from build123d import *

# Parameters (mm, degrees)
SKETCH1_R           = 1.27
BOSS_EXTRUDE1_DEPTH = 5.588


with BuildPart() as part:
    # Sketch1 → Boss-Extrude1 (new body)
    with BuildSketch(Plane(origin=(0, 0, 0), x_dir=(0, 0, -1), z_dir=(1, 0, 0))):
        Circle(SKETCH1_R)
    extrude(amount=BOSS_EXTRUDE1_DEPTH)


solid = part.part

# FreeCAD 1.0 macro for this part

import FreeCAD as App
import Part
import Sketcher

V = App.Vector
Q = App.Units.Quantity

doc = App.newDocument("Part")
body = doc.addObject("PartDesign::Body", "Body")

sketch1 = body.newObject("Sketcher::SketchObject", "Sketch")
sketch1.AttachmentSupport = (doc.getObject("YZ_Plane"), [""])
sketch1.MapMode = "FlatFace"
sketch1.addGeometry(Part.Circle(V(0, 0, 0), V(0, 0, 1), 1.3), False)
sketch1.addConstraint([
    Sketcher.Constraint("Coincident", 0, 3, -1, 1),
    Sketcher.Constraint("Diameter", 0, Q("0.1 in")),
])
pad1 = body.newObject("PartDesign::Pad", "Pad")
pad1.Profile = sketch1
pad1.Length = Q("0.22 in")

doc.recompute()
